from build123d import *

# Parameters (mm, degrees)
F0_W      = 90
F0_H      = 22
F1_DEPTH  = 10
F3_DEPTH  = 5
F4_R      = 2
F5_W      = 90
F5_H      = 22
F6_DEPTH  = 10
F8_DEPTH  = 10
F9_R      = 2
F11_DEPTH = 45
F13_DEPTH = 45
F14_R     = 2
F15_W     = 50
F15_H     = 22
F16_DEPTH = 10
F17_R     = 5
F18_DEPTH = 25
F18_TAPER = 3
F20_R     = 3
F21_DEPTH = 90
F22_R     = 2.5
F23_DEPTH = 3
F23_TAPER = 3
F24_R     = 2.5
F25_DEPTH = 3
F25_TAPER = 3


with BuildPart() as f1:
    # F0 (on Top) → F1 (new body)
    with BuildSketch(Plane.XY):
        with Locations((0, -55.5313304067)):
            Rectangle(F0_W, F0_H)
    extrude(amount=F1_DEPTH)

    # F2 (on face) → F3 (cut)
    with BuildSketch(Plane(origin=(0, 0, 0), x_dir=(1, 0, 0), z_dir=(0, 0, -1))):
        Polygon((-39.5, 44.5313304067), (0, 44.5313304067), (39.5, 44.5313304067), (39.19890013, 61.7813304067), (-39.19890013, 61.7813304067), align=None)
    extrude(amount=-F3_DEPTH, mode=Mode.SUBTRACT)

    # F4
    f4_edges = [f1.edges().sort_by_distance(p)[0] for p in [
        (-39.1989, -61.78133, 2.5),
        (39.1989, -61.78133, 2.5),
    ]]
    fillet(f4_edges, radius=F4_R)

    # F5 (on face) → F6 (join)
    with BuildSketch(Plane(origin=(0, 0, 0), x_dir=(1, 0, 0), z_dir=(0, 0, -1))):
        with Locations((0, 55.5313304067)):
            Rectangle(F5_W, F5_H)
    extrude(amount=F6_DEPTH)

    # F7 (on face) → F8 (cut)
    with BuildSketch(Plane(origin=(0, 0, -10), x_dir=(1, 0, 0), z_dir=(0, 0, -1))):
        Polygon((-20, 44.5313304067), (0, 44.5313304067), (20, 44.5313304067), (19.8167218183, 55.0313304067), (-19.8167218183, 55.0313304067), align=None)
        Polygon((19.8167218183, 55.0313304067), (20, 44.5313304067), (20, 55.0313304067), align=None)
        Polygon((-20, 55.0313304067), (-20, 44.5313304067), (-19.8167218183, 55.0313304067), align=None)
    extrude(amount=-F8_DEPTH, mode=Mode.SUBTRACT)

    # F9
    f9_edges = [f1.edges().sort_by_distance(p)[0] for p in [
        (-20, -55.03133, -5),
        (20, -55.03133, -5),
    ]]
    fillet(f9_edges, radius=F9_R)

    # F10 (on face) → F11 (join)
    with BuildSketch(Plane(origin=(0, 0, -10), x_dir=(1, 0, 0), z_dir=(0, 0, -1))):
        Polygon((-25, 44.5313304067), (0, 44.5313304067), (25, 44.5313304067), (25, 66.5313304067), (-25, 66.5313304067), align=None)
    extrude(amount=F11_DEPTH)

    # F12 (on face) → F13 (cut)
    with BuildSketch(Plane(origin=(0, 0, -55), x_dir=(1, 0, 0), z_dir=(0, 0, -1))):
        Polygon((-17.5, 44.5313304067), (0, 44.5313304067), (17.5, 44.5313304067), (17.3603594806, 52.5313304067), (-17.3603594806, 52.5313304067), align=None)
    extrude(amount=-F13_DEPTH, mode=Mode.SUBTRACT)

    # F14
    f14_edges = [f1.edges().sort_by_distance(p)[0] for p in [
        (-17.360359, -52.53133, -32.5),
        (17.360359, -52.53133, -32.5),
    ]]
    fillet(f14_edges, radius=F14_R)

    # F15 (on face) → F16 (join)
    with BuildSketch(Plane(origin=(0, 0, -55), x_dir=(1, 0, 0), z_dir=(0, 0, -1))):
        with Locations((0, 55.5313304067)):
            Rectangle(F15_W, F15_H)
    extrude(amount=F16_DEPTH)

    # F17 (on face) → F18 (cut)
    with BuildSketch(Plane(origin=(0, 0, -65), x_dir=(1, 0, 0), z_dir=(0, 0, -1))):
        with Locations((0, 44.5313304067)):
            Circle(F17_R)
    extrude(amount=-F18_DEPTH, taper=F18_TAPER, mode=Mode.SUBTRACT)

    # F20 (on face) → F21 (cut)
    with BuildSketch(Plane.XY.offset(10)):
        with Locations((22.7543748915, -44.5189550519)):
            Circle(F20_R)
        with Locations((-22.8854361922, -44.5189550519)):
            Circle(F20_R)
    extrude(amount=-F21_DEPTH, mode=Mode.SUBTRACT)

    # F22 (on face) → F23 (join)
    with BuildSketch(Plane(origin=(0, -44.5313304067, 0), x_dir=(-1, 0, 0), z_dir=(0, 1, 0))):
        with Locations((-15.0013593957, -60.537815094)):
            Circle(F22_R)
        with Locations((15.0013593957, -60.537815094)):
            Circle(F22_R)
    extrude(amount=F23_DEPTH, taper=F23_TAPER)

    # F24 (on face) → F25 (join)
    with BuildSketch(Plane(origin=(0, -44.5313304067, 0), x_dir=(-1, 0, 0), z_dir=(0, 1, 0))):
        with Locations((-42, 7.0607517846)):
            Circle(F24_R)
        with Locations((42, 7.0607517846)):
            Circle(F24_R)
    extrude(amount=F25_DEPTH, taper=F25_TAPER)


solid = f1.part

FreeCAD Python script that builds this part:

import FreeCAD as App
import Part
import Sketcher

V = App.Vector
Q = App.Units.Quantity


def edges_at(feature, points):
    """Names of the edges that pass closest to the given points."""
    edges = feature.Shape.Edges
    near = lambda p: min(range(len(edges)), key=lambda i: edges[i].distToShape(Part.Vertex(*p))[0])
    return sorted({f"Edge{near(p) + 1}" for p in points})

doc = App.newDocument("Part")
params = doc.addObject("Spreadsheet::Sheet", "Params")
for row, (alias, value) in enumerate([
    ("sketch1_width", "90 mm"),
    ("sketch1_height", "22 mm"),
    ("pad1_length", "10 mm"),
    ("sketch2_width", "79 mm"),
    ("pocket1_length", "5 mm"),
    ("fillet_radius", "2 mm"),
    ("sketch3_width", "90 mm"),
    ("sketch3_height", "22 mm"),
    ("pad2_length", "10 mm"),
    ("sketch4_width", "40 mm"),
    ("sketch4_height", "10.5 mm"),
    ("pocket2_length", "10 mm"),
    ("fillet2_radius", "2 mm"),
    ("sketch5_width", "50 mm"),
    ("sketch5_height", "22 mm"),
    ("pad3_length", "45 mm"),
    ("sketch6_width", "35 mm"),
    ("pocket3_length", "45 mm"),
    ("fillet3_radius", "2 mm"),
    ("sketch7_width", "50 mm"),
    ("sketch7_height", "22 mm"),
    ("pad4_length", "10 mm"),
    ("sketch8_diameter", "10 mm"),
    ("pocket4_length", "25 mm"),
    ("pocket4_taper", "-3 deg"),
    ("sketch9_diameter", "6 mm"),
    ("pocket5_length", "90 mm"),
    ("sketch10_diameter", "5 mm"),
    ("pad5_length", "3 mm"),
    ("pad5_taper", "-3 deg"),
    ("sketch11_diameter", "5 mm"),
    ("pad6_length", "3 mm"),
    ("pad6_taper", "-3 deg"),
], start=1):
    params.set(f"A{row}", alias)
    params.set(f"B{row}", "=" + value)
    params.setAlias(f"B{row}", alias)

body = doc.addObject("PartDesign::Body", "Body")

# Sketch on XY plane
sketch1 = doc.addObject("Sketcher::SketchObject", "Sketch")
body.addObject(sketch1)
sketch1.AttachmentSupport = (doc.XY_Plane, [""])
sketch1.MapMode = "FlatFace"
sketch1.addGeometry([
    Part.LineSegment(V(-45, -45, 0), V(-45, -67, 0)),
    Part.LineSegment(V(-45, -67, 0), V(45, -67, 0)),
    Part.LineSegment(V(45, -67, 0), V(45, -45, 0)),
    Part.LineSegment(V(45, -45, 0), V(-45, -45, 0)),
], False)
sketch1.addConstraint([
    Sketcher.Constraint("Coincident", 0, 2, 1, 1),
    Sketcher.Constraint("Coincident", 1, 2, 2, 1),
    Sketcher.Constraint("Coincident", 2, 2, 3, 1),
    Sketcher.Constraint("Coincident", 3, 2, 0, 1),
    Sketcher.Constraint("Vertical", 0),
    Sketcher.Constraint("Horizontal", 1),
    Sketcher.Constraint("Vertical", 2),
    Sketcher.Constraint("Horizontal", 3),
    Sketcher.Constraint("DistanceX", 1, 1, 1, 2, Q("90 mm")),
    Sketcher.Constraint("DistanceY", 0, 2, 0, 1, Q("22 mm")),
    Sketcher.Constraint("DistanceX", 0, 2, -1, 1, Q("45 mm")),
    Sketcher.Constraint("DistanceY", 0, 2, -1, 1, Q("66.53133 mm")),
])
sketch1.setExpression("Constraints[8]", "Params.sketch1_width")
sketch1.setExpression("Constraints[9]", "Params.sketch1_height")
pad1 = doc.addObject("PartDesign::Pad", "Pad")
body.addObject(pad1)
pad1.Profile = sketch1
pad1.setExpression("Length", "Params.pad1_length")

# Sketch on XY plane
sketch2 = doc.addObject("Sketcher::SketchObject", "Sketch001")
body.addObject(sketch2)
sketch2.AttachmentSupport = (doc.XY_Plane, [""])
sketch2.MapMode = "FlatFace"
sketch2.addGeometry([
    Part.LineSegment(V(-40, -45, 0), V(40, -45, 0)),
    Part.LineSegment(V(40, -45, 0), V(39, -62, 0)),
    Part.LineSegment(V(39, -62, 0), V(-39, -62, 0)),
    Part.LineSegment(V(-39, -62, 0), V(-40, -45, 0)),
], False)
sketch2.addConstraint([
    Sketcher.Constraint("Coincident", 0, 2, 1, 1),
    Sketcher.Constraint("Coincident", 1, 2, 2, 1),
    Sketcher.Constraint("Coincident", 2, 2, 3, 1),
    Sketcher.Constraint("Coincident", 3, 2, 0, 1),
    Sketcher.Constraint("Horizontal", 0),
    Sketcher.Constraint("Horizontal", 2),
    Sketcher.Constraint("Equal", 1, 3),
    Sketcher.Constraint("DistanceX", 0, 1, 0, 2, Q("79 mm")),
    Sketcher.Constraint("Angle", 1, Q("-91 deg")),
    Sketcher.Constraint("DistanceX", -1, 1, 0, 2, Q("39.5 mm")),
    Sketcher.Constraint("DistanceY", 1, 2, 0, 2, Q("17.25 mm")),
    Sketcher.Constraint("DistanceY", 0, 2, -1, 1, Q("44.53133 mm")),
])
sketch2.setExpression("Constraints[7]", "Params.sketch2_width")
pocket1 = doc.addObject("PartDesign::Pocket", "Pocket")
body.addObject(pocket1)
pocket1.Profile = sketch2
pocket1.setExpression("Length", "Params.pocket1_length")
pocket1.Reversed = True
doc.recompute()

fillet = doc.addObject("PartDesign::Fillet", "Fillet")
body.addObject(fillet)
fillet.Base = (pocket1, edges_at(pocket1, [(-39.199, -61.781, 2.5), (39.199, -61.781, 2.5)]))
fillet.setExpression("Radius", "Params.fillet_radius")

# Sketch on XY plane
sketch3 = doc.addObject("Sketcher::SketchObject", "Sketch002")
body.addObject(sketch3)
sketch3.AttachmentSupport = (doc.XY_Plane, [""])
sketch3.MapMode = "FlatFace"
sketch3.addGeometry([
    Part.LineSegment(V(-45, -67, 0), V(-45, -45, 0)),
    Part.LineSegment(V(-45, -45, 0), V(45, -45, 0)),
    Part.LineSegment(V(45, -45, 0), V(45, -67, 0)),
    Part.LineSegment(V(45, -67, 0), V(-45, -67, 0)),
], False)
sketch3.addConstraint([
    Sketcher.Constraint("Coincident", 0, 2, 1, 1),
    Sketcher.Constraint("Coincident", 1, 2, 2, 1),
    Sketcher.Constraint("Coincident", 2, 2, 3, 1),
    Sketcher.Constraint("Coincident", 3, 2, 0, 1),
    Sketcher.Constraint("Vertical", 0),
    Sketcher.Constraint("Horizontal", 1),
    Sketcher.Constraint("Vertical", 2),
    Sketcher.Constraint("Horizontal", 3),
    Sketcher.Constraint("DistanceX", 1, 1, 1, 2, Q("90 mm")),
    Sketcher.Constraint("DistanceY", 0, 1, 0, 2, Q("22 mm")),
    Sketcher.Constraint("DistanceX", 0, 2, -1, 1, Q("45 mm")),
    Sketcher.Constraint("DistanceY", 0, 2, -1, 1, Q("44.53133 mm")),
])
sketch3.setExpression("Constraints[8]", "Params.sketch3_width")
sketch3.setExpression("Constraints[9]", "Params.sketch3_height")
pad2 = doc.addObject("PartDesign::Pad", "Pad001")
body.addObject(pad2)
pad2.Profile = sketch3
pad2.setExpression("Length", "Params.pad2_length")
pad2.Reversed = True

# Sketch on XY plane
sketch4 = doc.addObject("Sketcher::SketchObject", "Sketch003")
body.addObject(sketch4)
sketch4.AttachmentSupport = (doc.XY_Plane, [""])
sketch4.MapMode = "FlatFace"
sketch4.AttachmentOffset = App.Placement(V(0, 0, -10), App.Rotation())
sketch4.addGeometry([
    Part.LineSegment(V(-20, -55, 0), V(-20, -45, 0)),
    Part.LineSegment(V(-20, -45, 0), V(20, -45, 0)),
    Part.LineSegment(V(20, -45, 0), V(20, -55, 0)),
    Part.LineSegment(V(20, -55, 0), V(-20, -55, 0)),
], False)
sketch4.addConstraint([
    Sketcher.Constraint("Coincident", 0, 2, 1, 1),
    Sketcher.Constraint("Coincident", 1, 2, 2, 1),
    Sketcher.Constraint("Coincident", 2, 2, 3, 1),
    Sketcher.Constraint("Coincident", 3, 2, 0, 1),
    Sketcher.Constraint("Vertical", 0),
    Sketcher.Constraint("Horizontal", 1),
    Sketcher.Constraint("Vertical", 2),
    Sketcher.Constraint("Horizontal", 3),
    Sketcher.Constraint("DistanceX", 1, 1, 1, 2, Q("40 mm")),
    Sketcher.Constraint("DistanceY", 0, 1, 0, 2, Q("10.5 mm")),
    Sketcher.Constraint("DistanceX", 0, 2, -1, 1, Q("20 mm")),
    Sketcher.Constraint("DistanceY", 0, 2, -1, 1, Q("44.53133 mm")),
])
sketch4.setExpression("Constraints[8]", "Params.sketch4_width")
sketch4.setExpression("Constraints[9]", "Params.sketch4_height")
pocket2 = doc.addObject("PartDesign::Pocket", "Pocket001")
body.addObject(pocket2)
pocket2.Profile = sketch4
pocket2.setExpression("Length", "Params.pocket2_length")
pocket2.Reversed = True
doc.recompute()

fillet2 = doc.addObject("PartDesign::Fillet", "Fillet001")
body.addObject(fillet2)
fillet2.Base = (pocket2, edges_at(pocket2, [(-20, -55.031, -5), (20, -55.031, -5)]))
fillet2.setExpression("Radius", "Params.fillet2_radius")

# Sketch on XY plane
sketch5 = doc.addObject("Sketcher::SketchObject", "Sketch004")
body.addObject(sketch5)
sketch5.AttachmentSupport = (doc.XY_Plane, [""])
sketch5.MapMode = "FlatFace"
sketch5.AttachmentOffset = App.Placement(V(0, 0, -10), App.Rotation())
sketch5.addGeometry([
    Part.LineSegment(V(-25, -45, 0), V(25, -45, 0)),
    Part.LineSegment(V(25, -45, 0), V(25, -67, 0)),
    Part.LineSegment(V(25, -67, 0), V(-25, -67, 0)),
    Part.LineSegment(V(-25, -67, 0), V(-25, -45, 0)),
], False)
sketch5.addConstraint([
    Sketcher.Constraint("Coincident", 0, 2, 1, 1),
    Sketcher.Constraint("Coincident", 1, 2, 2, 1),
    Sketcher.Constraint("Coincident", 2, 2, 3, 1),
    Sketcher.Constraint("Coincident", 3, 2, 0, 1),
    Sketcher.Constraint("Horizontal", 0),
    Sketcher.Constraint("Vertical", 1),
    Sketcher.Constraint("Horizontal", 2),
    Sketcher.Constraint("Vertical", 3),
    Sketcher.Constraint("DistanceX", 0, 1, 0, 2, Q("50 mm")),
    Sketcher.Constraint("DistanceY", 1, 2, 1, 1, Q("22 mm")),
    Sketcher.Constraint("DistanceX", -1, 1, 0, 2, Q("25 mm")),
    Sketcher.Constraint("DistanceY", 0, 2, -1, 1, Q("44.53133 mm")),
])
sketch5.setExpression("Constraints[8]", "Params.sketch5_width")
sketch5.setExpression("Constraints[9]", "Params.sketch5_height")
pad3 = doc.addObject("PartDesign::Pad", "Pad002")
body.addObject(pad3)
pad3.Profile = sketch5
pad3.setExpression("Length", "Params.pad3_length")
pad3.Reversed = True

# Sketch on XY plane
sketch6 = doc.addObject("Sketcher::SketchObject", "Sketch005")
body.addObject(sketch6)
sketch6.AttachmentSupport = (doc.XY_Plane, [""])
sketch6.MapMode = "FlatFace"
sketch6.AttachmentOffset = App.Placement(V(0, 0, -55), App.Rotation())
sketch6.addGeometry([
    Part.LineSegment(V(-18, -45, 0), V(18, -45, 0)),
    Part.LineSegment(V(18, -45, 0), V(17, -53, 0)),
    Part.LineSegment(V(17, -53, 0), V(-17, -53, 0)),
    Part.LineSegment(V(-17, -53, 0), V(-18, -45, 0)),
], False)
sketch6.addConstraint([
    Sketcher.Constraint("Coincident", 0, 2, 1, 1),
    Sketcher.Constraint("Coincident", 1, 2, 2, 1),
    Sketcher.Constraint("Coincident", 2, 2, 3, 1),
    Sketcher.Constraint("Coincident", 3, 2, 0, 1),
    Sketcher.Constraint("Horizontal", 0),
    Sketcher.Constraint("Horizontal", 2),
    Sketcher.Constraint("Equal", 1, 3),
    Sketcher.Constraint("DistanceX", 0, 1, 0, 2, Q("35 mm")),
    Sketcher.Constraint("Angle", 1, Q("-91 deg")),
    Sketcher.Constraint("DistanceY", 1, 2, 0, 2, Q("8 mm")),
    Sketcher.Constraint("DistanceX", -1, 1, 0, 2, Q("17.5 mm")),
    Sketcher.Constraint("DistanceY", 0, 2, -1, 1, Q("44.53133 mm")),
])
sketch6.setExpression("Constraints[7]", "Params.sketch6_width")
pocket3 = doc.addObject("PartDesign::Pocket", "Pocket002")
body.addObject(pocket3)
pocket3.Profile = sketch6
pocket3.setExpression("Length", "Params.pocket3_length")
pocket3.Reversed = True
doc.recompute()

fillet3 = doc.addObject("PartDesign::Fillet", "Fillet002")
body.addObject(fillet3)
fillet3.Base = (pocket3, edges_at(pocket3, [(-17.36, -52.531, -32.5), (17.36, -52.531, -32.5)]))
fillet3.setExpression("Radius", "Params.fillet3_radius")

# Sketch on XY plane
sketch7 = doc.addObject("Sketcher::SketchObject", "Sketch006")
body.addObject(sketch7)
sketch7.AttachmentSupport = (doc.XY_Plane, [""])
sketch7.MapMode = "FlatFace"
sketch7.AttachmentOffset = App.Placement(V(0, 0, -55), App.Rotation())
sketch7.addGeometry([
    Part.LineSegment(V(-25, -67, 0), V(-25, -45, 0)),
    Part.LineSegment(V(-25, -45, 0), V(25, -45, 0)),
    Part.LineSegment(V(25, -45, 0), V(25, -67, 0)),
    Part.LineSegment(V(25, -67, 0), V(-25, -67, 0)),
], False)
sketch7.addConstraint([
    Sketcher.Constraint("Coincident", 0, 2, 1, 1),
    Sketcher.Constraint("Coincident", 1, 2, 2, 1),
    Sketcher.Constraint("Coincident", 2, 2, 3, 1),
    Sketcher.Constraint("Coincident", 3, 2, 0, 1),
    Sketcher.Constraint("Vertical", 0),
    Sketcher.Constraint("Horizontal", 1),
    Sketcher.Constraint("Vertical", 2),
    Sketcher.Constraint("Horizontal", 3),
    Sketcher.Constraint("DistanceX", 1, 1, 1, 2, Q("50 mm")),
    Sketcher.Constraint("DistanceY", 0, 1, 0, 2, Q("22 mm")),
    Sketcher.Constraint("DistanceX", 0, 2, -1, 1, Q("25 mm")),
    Sketcher.Constraint("DistanceY", 0, 2, -1, 1, Q("44.53133 mm")),
])
sketch7.setExpression("Constraints[8]", "Params.sketch7_width")
sketch7.setExpression("Constraints[9]", "Params.sketch7_height")
pad4 = doc.addObject("PartDesign::Pad", "Pad003")
body.addObject(pad4)
pad4.Profile = sketch7
pad4.setExpression("Length", "Params.pad4_length")
pad4.Reversed = True

# Sketch on XY plane
sketch8 = doc.addObject("Sketcher::SketchObject", "Sketch007")
body.addObject(sketch8)
sketch8.AttachmentSupport = (doc.XY_Plane, [""])
sketch8.MapMode = "FlatFace"
sketch8.AttachmentOffset = App.Placement(V(0, 0, -65), App.Rotation())
sketch8.addGeometry(Part.Circle(V(0, -45, 0), V(0, 0, 1), 5), False)
sketch8.addConstraint([
    Sketcher.Constraint("PointOnObject", 0, 3, -2),
    Sketcher.Constraint("Diameter", 0, Q("10 mm")),
    Sketcher.Constraint("DistanceY", 0, 3, -1, 1, Q("44.53133 mm")),
])
sketch8.setExpression("Constraints[1]", "Params.sketch8_diameter")
pocket4 = doc.addObject("PartDesign::Pocket", "Pocket003")
body.addObject(pocket4)
pocket4.Profile = sketch8
pocket4.setExpression("Length", "Params.pocket4_length")
pocket4.Reversed = True
pocket4.setExpression("TaperAngle", "Params.pocket4_taper")

# Sketch on XY plane
sketch9 = doc.addObject("Sketcher::SketchObject", "Sketch008")
body.addObject(sketch9)
sketch9.AttachmentSupport = (doc.XY_Plane, [""])
sketch9.MapMode = "FlatFace"
sketch9.AttachmentOffset = App.Placement(V(0, 0, 10), App.Rotation())
sketch9.addGeometry([
    Part.Circle(V(22.8, -44.5, 0), V(0, 0, 1), 3),
    Part.Circle(V(-22.9, -44.5, 0), V(0, 0, 1), 3),
], False)
sketch9.addConstraint([
    Sketcher.Constraint("Equal", 0, 1),
    Sketcher.Constraint("Horizontal", 0, 3, 1, 3),
    Sketcher.Constraint("Diameter", 0, Q("6 mm")),
    Sketcher.Constraint("DistanceX", 1, 3, 0, 3, Q("45.639811 mm")),
    Sketcher.Constraint("DistanceX", -1, 1, 0, 3, Q("22.754375 mm")),
    Sketcher.Constraint("DistanceY", 0, 3, -1, 1, Q("44.518955 mm")),
])
sketch9.setExpression("Constraints[2]", "Params.sketch9_diameter")
pocket5 = doc.addObject("PartDesign::Pocket", "Pocket004")
body.addObject(pocket5)
pocket5.Profile = sketch9
pocket5.setExpression("Length", "Params.pocket5_length")

# Sketch on XZ plane
sketch10 = doc.addObject("Sketcher::SketchObject", "Sketch009")
body.addObject(sketch10)
sketch10.AttachmentSupport = (doc.XZ_Plane, [""])
sketch10.MapMode = "FlatFace"
sketch10.AttachmentOffset = App.Placement(V(0, 0, 44.53133), App.Rotation())
sketch10.addGeometry([
    Part.Circle(V(15, -60.5, 0), V(0, 0, 1), 2.5),
    Part.Circle(V(-15, -60.5, 0), V(0, 0, 1), 2.5),
], False)
sketch10.addConstraint([
    Sketcher.Constraint("Equal", 0, 1),
    Sketcher.Constraint("Symmetric", 0, 3, 1, 3, -2),
    Sketcher.Constraint("Diameter", 0, Q("5 mm")),
    Sketcher.Constraint("DistanceX", -1, 1, 0, 3, Q("15.001359 mm")),
    Sketcher.Constraint("DistanceY", 0, 3, -1, 1, Q("60.537815 mm")),
])
sketch10.setExpression("Constraints[2]", "Params.sketch10_diameter")
pad5 = doc.addObject("PartDesign::Pad", "Pad004")
body.addObject(pad5)
pad5.Profile = sketch10
pad5.setExpression("Length", "Params.pad5_length")
pad5.Reversed = True
pad5.setExpression("TaperAngle", "Params.pad5_taper")

# Sketch on XZ plane
sketch11 = doc.addObject("Sketcher::SketchObject", "Sketch010")
body.addObject(sketch11)
sketch11.AttachmentSupport = (doc.XZ_Plane, [""])
sketch11.MapMode = "FlatFace"
sketch11.AttachmentOffset = App.Placement(V(0, 0, 44.53133), App.Rotation())
sketch11.addGeometry([
    Part.Circle(V(42, 7.1, 0), V(0, 0, 1), 2.5),
    Part.Circle(V(-42, 7.1, 0), V(0, 0, 1), 2.5),
], False)
sketch11.addConstraint([
    Sketcher.Constraint("Equal", 0, 1),
    Sketcher.Constraint("Symmetric", 0, 3, 1, 3, -2),
    Sketcher.Constraint("Diameter", 0, Q("5 mm")),
    Sketcher.Constraint("DistanceX", -1, 1, 0, 3, Q("42 mm")),
    Sketcher.Constraint("DistanceY", -1, 1, 0, 3, Q("7.060752 mm")),
])
sketch11.setExpression("Constraints[2]", "Params.sketch11_diameter")
pad6 = doc.addObject("PartDesign::Pad", "Pad005")
body.addObject(pad6)
pad6.Profile = sketch11
pad6.setExpression("Length", "Params.pad6_length")
pad6.Reversed = True
pad6.setExpression("TaperAngle", "Params.pad6_taper")

doc.recompute()
